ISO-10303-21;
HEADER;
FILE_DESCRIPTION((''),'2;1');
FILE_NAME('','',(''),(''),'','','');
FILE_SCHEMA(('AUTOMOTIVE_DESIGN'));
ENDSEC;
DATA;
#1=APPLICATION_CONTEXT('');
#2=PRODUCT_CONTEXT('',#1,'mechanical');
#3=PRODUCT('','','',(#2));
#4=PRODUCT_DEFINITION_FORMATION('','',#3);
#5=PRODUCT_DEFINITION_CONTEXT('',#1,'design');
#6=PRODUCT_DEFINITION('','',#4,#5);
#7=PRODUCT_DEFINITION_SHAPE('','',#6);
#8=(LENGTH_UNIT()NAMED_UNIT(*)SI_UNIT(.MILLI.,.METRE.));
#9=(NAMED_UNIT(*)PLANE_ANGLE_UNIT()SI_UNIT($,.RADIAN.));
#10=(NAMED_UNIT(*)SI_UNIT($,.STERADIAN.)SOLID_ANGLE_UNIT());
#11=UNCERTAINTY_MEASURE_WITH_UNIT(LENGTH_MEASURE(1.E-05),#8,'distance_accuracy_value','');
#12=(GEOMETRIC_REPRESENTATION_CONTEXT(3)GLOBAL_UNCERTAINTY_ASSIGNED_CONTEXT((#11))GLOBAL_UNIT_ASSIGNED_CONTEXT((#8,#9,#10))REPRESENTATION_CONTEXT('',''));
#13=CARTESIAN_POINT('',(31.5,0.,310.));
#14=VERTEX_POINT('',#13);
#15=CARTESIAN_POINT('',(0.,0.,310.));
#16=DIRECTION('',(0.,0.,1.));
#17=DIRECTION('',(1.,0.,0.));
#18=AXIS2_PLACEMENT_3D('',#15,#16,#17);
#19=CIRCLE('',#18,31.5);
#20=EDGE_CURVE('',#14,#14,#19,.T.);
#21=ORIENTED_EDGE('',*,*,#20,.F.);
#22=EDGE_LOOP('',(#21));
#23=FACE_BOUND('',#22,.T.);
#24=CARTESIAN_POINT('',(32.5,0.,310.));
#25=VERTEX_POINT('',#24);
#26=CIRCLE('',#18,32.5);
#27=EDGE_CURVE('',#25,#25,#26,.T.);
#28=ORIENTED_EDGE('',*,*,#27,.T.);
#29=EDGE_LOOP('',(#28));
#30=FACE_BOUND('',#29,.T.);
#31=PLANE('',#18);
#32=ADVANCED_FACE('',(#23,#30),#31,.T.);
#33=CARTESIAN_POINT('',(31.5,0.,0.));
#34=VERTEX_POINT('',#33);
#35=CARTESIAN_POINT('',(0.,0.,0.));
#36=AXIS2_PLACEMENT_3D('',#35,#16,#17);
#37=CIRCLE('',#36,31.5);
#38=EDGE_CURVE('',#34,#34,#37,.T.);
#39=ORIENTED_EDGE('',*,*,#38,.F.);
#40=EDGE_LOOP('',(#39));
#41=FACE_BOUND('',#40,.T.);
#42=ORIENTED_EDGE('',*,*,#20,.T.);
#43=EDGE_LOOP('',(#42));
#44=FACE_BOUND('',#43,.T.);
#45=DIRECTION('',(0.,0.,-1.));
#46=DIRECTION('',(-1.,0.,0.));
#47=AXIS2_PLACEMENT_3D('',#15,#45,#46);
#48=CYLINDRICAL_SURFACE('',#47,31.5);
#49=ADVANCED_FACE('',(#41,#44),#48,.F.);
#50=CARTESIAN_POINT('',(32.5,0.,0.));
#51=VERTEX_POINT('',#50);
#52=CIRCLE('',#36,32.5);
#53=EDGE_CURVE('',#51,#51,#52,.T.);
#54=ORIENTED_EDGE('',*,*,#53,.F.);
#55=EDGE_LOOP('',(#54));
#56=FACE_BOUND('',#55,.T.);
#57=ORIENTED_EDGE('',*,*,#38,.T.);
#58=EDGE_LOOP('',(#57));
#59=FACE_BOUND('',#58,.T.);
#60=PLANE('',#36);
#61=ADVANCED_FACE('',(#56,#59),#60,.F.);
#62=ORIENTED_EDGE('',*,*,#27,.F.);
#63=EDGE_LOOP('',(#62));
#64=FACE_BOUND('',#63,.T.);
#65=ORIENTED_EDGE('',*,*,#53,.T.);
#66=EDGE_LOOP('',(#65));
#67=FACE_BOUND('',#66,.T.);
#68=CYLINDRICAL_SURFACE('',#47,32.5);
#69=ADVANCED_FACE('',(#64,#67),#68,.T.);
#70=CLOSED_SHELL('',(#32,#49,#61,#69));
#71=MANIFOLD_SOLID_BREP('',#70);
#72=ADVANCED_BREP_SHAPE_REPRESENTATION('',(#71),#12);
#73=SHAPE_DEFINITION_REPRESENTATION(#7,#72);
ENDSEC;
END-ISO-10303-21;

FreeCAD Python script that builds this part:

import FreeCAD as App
import Part
import Sketcher
from FreeCAD import Vector
Q = App.Units.Quantity

doc = App.newDocument("Part")
body = doc.addObject("PartDesign::Body", "Body")

sketch1 = doc.addObject("Sketcher::SketchObject", "Sketch")
body.addObject(sketch1)
sketch1.AttachmentSupport = (doc.XY_Plane, [""])
sketch1.MapMode = "FlatFace"
sketch1.addGeometry(Part.Circle(Vector(0, 0, 0), Vector(0, 0, 1), 32), False)
sketch1.addGeometry(Part.Circle(Vector(0, 0, 0), Vector(0, 0, 1), 32), False)
sketch1.addConstraint(Sketcher.Constraint("Coincident", 0, 3, -1, 1))
sketch1.addConstraint(Sketcher.Constraint("Coincident", 1, 3, -1, 1))
sketch1.addConstraint(Sketcher.Constraint("Diameter", 0, Q("65 mm")))
sketch1.addConstraint(Sketcher.Constraint("Diameter", 1, Q("63 mm")))
pad1 = doc.addObject("PartDesign::Pad", "Pad")
body.addObject(pad1)
pad1.Profile = sketch1
pad1.Length = 310

doc.recompute()
